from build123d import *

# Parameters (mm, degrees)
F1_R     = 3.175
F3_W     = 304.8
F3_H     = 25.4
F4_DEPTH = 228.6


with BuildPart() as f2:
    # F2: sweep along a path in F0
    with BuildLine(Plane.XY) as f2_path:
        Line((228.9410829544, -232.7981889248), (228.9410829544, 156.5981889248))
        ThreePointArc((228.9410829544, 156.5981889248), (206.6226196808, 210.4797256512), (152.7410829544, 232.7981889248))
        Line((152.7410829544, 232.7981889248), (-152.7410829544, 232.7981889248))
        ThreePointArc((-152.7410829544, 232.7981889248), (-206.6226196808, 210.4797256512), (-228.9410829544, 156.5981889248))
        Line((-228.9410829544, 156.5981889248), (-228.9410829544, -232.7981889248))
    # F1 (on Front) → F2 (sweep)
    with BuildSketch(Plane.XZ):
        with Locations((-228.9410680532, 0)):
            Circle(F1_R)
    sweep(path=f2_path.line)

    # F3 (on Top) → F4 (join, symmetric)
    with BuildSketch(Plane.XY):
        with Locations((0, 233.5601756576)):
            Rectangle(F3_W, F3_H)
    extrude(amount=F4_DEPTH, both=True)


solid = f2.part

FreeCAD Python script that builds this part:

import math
import FreeCAD as App
import Part
import Sketcher

V = App.Vector
Q = App.Units.Quantity


def add_polygon(sketch, points):
    """Adds a closed chain of lines whose ends are joined by coincident constraints."""
    first, n = sketch.GeometryCount, len(points)
    for a, b in zip(points, points[1:] + points[:1]):
        sketch.addGeometry(Part.LineSegment(App.Vector(*a, 0), App.Vector(*b, 0)), False)
    for i in range(n):
        sketch.addConstraint(Sketcher.Constraint("Coincident", first + i, 2, first + (i + 1) % n, 1))

doc = App.newDocument("Part")
body = doc.addObject("PartDesign::Body", "Body")

sketch1 = body.newObject("Sketcher::SketchObject", "Sketch")
sketch1.AttachmentSupport = (doc.getObject("XZ_Plane"), [""])
sketch1.MapMode = "FlatFace"
sketch1.addGeometry(Part.Circle(V(-228.9, 0, 0), V(0, 0, 1), 3.2), False)
sketch1.addConstraint([
    Sketcher.Constraint("PointOnObject", 0, 3, -1),
    Sketcher.Constraint("Diameter", 0, Q("0.25 in")),
    Sketcher.Constraint("DistanceX", 0, 3, -1, 1, Q("228.941068 mm")),
])

sketch2 = body.newObject("Sketcher::SketchObject", "Sketch001")
sketch2.AttachmentSupport = (doc.getObject("XY_Plane"), [""])
sketch2.MapMode = "FlatFace"
sketch2.addGeometry([
    Part.LineSegment(V(229, -233, 0), V(229, 157, 0)),
    Part.ArcOfCircle(Part.Circle(V(153, 157, 0), V(0, 0, 1), 76), math.radians(0), math.radians(90)),
    Part.LineSegment(V(153, 233, 0), V(-153, 233, 0)),
    Part.ArcOfCircle(Part.Circle(V(-153, 157, 0), V(0, 0, 1), 76), math.radians(90), math.radians(180)),
    Part.LineSegment(V(-229, 157, 0), V(-229, -233, 0)),
], False)
sketch2.addConstraint([
    Sketcher.Constraint("Tangent", 0, 2, 1, 1),
    Sketcher.Constraint("Tangent", 1, 2, 2, 1),
    Sketcher.Constraint("Tangent", 2, 2, 3, 1),
    Sketcher.Constraint("Tangent", 3, 2, 4, 1),
    Sketcher.Constraint("Vertical", 0),
    Sketcher.Constraint("Horizontal", 2),
    Sketcher.Constraint("Vertical", 4),
    Sketcher.Constraint("Equal", 1, 3),
    Sketcher.Constraint("Symmetric", 0, 1, 4, 2, -2),
    Sketcher.Constraint("Radius", 1, Q("3 in")),
    Sketcher.Constraint("DistanceX", 2, 2, 2, 1, Q("305.482166 mm")),
    Sketcher.Constraint("DistanceY", 0, 1, 0, 2, Q("389.396378 mm")),
    Sketcher.Constraint("DistanceY", -1, 1, 1, 3, Q("156.598189 mm")),
])
doc.recompute()

additivepipe = body.newObject("PartDesign::AdditivePipe", "AdditivePipe")
additivepipe.Profile = sketch1
additivepipe.Spine = (sketch2, ["Edge1", "Edge2", "Edge3", "Edge4", "Edge5"])

sketch3 = body.newObject("Sketcher::SketchObject", "Sketch002")
sketch3.AttachmentSupport = (doc.getObject("XY_Plane"), [""])
sketch3.MapMode = "FlatFace"
add_polygon(sketch3, [(-152, 246), (-152, 221), (152, 221), (152, 246)])
sketch3.addConstraint([
    Sketcher.Constraint("Vertical", 0),
    Sketcher.Constraint("Horizontal", 1),
    Sketcher.Constraint("Vertical", 2),
    Sketcher.Constraint("Horizontal", 3),
    Sketcher.Constraint("DistanceX", 1, 1, 1, 2, Q("12 in")),
    Sketcher.Constraint("DistanceY", 0, 2, 0, 1, Q("1 in")),
    Sketcher.Constraint("DistanceX", 0, 2, -1, 1, Q("6 in")),
    Sketcher.Constraint("DistanceY", -1, 1, 0, 2, Q("220.860176 mm")),
])
pad1 = body.newObject("PartDesign::Pad", "Pad")
pad1.Profile = sketch3
pad1.Length = Q("18 in")
pad1.Midplane = True

doc.recompute()
